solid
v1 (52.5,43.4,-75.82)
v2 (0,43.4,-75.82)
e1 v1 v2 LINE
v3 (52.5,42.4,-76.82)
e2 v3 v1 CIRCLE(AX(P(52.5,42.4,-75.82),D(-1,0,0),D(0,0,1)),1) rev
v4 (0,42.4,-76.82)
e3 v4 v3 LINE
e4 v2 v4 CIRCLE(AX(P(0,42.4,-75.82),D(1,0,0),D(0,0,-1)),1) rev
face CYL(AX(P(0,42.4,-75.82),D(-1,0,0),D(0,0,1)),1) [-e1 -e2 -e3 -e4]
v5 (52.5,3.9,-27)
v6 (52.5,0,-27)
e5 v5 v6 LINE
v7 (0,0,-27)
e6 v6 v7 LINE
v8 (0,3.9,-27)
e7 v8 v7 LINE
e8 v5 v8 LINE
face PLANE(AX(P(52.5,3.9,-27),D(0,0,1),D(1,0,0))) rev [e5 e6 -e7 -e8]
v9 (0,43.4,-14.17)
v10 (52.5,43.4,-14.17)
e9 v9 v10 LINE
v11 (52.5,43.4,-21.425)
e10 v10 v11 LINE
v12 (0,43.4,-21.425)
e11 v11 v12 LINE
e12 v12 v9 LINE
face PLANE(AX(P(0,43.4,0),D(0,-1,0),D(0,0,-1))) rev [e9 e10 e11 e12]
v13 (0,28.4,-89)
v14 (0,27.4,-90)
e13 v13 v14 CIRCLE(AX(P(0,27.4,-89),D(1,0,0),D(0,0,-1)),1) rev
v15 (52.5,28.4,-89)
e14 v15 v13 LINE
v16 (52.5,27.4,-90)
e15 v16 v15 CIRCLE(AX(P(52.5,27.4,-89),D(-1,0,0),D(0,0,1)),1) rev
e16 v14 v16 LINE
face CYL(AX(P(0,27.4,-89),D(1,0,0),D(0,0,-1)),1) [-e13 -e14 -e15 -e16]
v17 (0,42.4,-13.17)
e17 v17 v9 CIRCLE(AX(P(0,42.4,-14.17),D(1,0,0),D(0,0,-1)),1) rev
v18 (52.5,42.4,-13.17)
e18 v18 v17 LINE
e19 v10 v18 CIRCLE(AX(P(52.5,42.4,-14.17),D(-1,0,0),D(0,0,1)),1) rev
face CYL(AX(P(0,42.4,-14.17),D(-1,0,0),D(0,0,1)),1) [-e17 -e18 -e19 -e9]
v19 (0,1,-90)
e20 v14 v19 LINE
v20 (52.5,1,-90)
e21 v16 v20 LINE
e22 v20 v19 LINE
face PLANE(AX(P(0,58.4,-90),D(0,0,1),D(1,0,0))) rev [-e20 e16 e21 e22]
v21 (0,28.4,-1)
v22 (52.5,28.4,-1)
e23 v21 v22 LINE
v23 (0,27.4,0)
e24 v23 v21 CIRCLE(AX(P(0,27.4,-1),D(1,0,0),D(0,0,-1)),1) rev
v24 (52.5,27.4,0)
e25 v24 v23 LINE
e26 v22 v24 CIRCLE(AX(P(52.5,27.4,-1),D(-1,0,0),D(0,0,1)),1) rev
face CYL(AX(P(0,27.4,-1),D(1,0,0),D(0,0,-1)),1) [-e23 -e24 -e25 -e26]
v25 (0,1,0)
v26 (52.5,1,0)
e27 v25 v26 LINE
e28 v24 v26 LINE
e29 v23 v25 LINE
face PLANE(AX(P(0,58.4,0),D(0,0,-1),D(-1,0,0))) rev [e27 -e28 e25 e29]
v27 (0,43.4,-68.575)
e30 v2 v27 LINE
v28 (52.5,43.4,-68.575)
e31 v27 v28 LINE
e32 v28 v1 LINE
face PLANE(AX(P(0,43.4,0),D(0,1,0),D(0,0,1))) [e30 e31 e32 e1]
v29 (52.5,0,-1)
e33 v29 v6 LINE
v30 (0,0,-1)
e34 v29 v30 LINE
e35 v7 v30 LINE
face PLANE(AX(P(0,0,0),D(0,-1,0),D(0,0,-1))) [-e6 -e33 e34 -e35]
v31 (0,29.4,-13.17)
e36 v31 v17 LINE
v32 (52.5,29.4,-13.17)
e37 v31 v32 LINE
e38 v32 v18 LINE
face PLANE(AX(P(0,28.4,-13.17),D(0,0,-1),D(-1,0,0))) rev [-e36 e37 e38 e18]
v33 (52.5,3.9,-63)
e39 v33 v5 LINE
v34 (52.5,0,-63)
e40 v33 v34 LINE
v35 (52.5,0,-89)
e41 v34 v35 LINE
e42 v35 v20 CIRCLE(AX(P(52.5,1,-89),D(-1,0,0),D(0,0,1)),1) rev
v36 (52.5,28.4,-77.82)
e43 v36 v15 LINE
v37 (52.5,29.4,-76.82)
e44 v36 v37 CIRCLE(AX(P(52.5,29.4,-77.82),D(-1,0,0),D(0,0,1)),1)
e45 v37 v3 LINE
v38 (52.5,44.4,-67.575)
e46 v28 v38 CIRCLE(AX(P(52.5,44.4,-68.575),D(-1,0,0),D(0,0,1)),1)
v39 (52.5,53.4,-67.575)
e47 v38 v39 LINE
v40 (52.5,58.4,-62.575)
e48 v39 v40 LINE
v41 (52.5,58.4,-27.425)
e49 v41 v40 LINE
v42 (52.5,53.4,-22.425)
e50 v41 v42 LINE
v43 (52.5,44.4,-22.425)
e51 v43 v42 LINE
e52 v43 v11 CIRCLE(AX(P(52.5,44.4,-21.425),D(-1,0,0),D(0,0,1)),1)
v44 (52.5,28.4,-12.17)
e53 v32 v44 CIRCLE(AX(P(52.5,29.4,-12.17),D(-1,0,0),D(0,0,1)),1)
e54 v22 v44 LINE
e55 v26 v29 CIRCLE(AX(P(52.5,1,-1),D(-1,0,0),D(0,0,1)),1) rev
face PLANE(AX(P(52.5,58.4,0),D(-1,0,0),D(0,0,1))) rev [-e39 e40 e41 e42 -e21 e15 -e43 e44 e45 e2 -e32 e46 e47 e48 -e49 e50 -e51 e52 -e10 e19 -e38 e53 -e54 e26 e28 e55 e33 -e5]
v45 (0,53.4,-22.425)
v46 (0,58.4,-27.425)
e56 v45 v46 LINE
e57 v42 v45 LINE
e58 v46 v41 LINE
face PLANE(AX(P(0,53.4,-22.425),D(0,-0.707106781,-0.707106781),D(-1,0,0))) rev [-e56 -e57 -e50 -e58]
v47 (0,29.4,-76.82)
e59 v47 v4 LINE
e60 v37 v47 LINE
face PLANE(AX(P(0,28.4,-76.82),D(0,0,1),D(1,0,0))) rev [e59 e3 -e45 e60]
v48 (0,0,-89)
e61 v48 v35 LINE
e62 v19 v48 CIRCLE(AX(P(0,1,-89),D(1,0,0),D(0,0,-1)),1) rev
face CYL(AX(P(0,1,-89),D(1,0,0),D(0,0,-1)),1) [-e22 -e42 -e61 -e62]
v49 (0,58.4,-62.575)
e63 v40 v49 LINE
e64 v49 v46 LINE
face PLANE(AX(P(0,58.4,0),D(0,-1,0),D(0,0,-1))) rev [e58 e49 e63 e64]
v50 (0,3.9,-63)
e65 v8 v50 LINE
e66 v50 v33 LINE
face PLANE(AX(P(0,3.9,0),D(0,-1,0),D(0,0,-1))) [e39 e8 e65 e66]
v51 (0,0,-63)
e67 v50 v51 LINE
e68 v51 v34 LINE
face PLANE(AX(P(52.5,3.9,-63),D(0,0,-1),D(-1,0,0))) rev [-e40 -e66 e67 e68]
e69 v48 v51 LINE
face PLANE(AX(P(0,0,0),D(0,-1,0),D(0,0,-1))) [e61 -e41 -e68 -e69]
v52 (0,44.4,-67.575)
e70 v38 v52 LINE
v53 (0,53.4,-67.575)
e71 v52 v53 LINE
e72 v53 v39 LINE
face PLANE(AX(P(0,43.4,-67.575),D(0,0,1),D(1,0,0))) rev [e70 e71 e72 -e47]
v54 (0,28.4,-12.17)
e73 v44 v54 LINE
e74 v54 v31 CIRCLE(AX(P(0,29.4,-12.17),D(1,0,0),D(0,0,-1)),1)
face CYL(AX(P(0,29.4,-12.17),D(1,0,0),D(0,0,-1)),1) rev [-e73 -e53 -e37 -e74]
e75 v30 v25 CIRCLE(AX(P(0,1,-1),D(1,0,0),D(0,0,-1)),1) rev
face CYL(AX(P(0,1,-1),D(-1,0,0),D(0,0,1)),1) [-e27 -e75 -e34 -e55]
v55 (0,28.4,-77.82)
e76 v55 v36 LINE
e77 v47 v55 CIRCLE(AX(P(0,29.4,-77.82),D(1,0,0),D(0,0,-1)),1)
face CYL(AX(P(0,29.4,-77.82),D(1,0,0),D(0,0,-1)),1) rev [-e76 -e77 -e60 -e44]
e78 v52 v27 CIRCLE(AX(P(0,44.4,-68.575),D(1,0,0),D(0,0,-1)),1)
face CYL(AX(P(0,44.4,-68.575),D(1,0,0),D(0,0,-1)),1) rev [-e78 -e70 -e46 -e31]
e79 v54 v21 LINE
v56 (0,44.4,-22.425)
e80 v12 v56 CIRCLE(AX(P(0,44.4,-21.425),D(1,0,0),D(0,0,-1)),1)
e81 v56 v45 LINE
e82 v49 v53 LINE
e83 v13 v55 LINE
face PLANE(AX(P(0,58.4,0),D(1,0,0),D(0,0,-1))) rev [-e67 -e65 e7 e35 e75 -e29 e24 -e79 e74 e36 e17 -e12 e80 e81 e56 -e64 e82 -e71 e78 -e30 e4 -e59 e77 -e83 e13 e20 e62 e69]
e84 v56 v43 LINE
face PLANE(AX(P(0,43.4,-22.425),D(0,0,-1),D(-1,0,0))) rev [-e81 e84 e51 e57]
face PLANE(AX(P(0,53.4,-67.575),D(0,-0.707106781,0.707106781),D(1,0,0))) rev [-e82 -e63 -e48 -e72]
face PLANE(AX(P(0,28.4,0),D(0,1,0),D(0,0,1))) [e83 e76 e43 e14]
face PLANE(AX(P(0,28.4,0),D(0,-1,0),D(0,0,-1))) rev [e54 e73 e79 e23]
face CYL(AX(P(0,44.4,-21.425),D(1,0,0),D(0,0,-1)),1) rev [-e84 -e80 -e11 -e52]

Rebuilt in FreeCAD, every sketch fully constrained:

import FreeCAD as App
import Part
import Sketcher
from FreeCAD import Vector
Q = App.Units.Quantity


def edges_at(feature, points):
    """Names of the edges that pass closest to the given points."""
    edges = feature.Shape.Edges
    near = lambda p: min(range(len(edges)), key=lambda i: edges[i].distToShape(Part.Vertex(*p))[0])
    return sorted({f"Edge{near(p) + 1}" for p in points})

doc = App.newDocument("Part")
body = doc.addObject("PartDesign::Body", "Body")

sketch1 = body.newObject("Sketcher::SketchObject", "Sketch")
sketch1.AttachmentSupport = (doc.getObject("XZ_Plane"), [""])
sketch1.MapMode = "FlatFace"
sketch1.addGeometry([
    Part.LineSegment(Vector(0, -90, 0), Vector(0, 0, 0)),
    Part.LineSegment(Vector(0, 0, 0), Vector(52, 0, 0)),
    Part.LineSegment(Vector(52, 0, 0), Vector(52, -90, 0)),
    Part.LineSegment(Vector(52, -90, 0), Vector(0, -90, 0)),
], False)
sketch1.addConstraint([
    Sketcher.Constraint("Coincident", 0, 2, 1, 1),
    Sketcher.Constraint("Coincident", 1, 2, 2, 1),
    Sketcher.Constraint("Coincident", 2, 2, 3, 1),
    Sketcher.Constraint("Coincident", 3, 2, 0, 1),
    Sketcher.Constraint("Vertical", 0),
    Sketcher.Constraint("Horizontal", 1),
    Sketcher.Constraint("Vertical", 2),
    Sketcher.Constraint("Horizontal", 3),
    Sketcher.Constraint("Coincident", 0, 2, -1, 1),
    Sketcher.Constraint("DistanceY", 0, 1, 0, 2, Q("90 mm")),
    Sketcher.Constraint("DistanceX", 1, 1, 1, 2, Q("52.5 mm")),
])
pad1 = body.newObject("PartDesign::Pad", "Pad")
pad1.Profile = sketch1
pad1.Length = 58.4
pad1.Reversed = True

sketch2 = body.newObject("Sketcher::SketchObject", "Sketch001")
sketch2.AttachmentSupport = (doc.getObject("XZ_Plane"), [""])
sketch2.MapMode = "FlatFace"
sketch2.AttachmentOffset = App.Placement(Vector(0, 0, -58.4), App.Rotation())
sketch2.addGeometry([
    Part.LineSegment(Vector(0, -90, 0), Vector(0, -68, 0)),
    Part.LineSegment(Vector(0, -68, 0), Vector(52, -68, 0)),
    Part.LineSegment(Vector(52, -68, 0), Vector(52, -90, 0)),
    Part.LineSegment(Vector(52, -90, 0), Vector(0, -90, 0)),
    Part.LineSegment(Vector(0, -22, 0), Vector(0, 0, 0)),
    Part.LineSegment(Vector(0, 0, 0), Vector(52, 0, 0)),
    Part.LineSegment(Vector(52, 0, 0), Vector(52, -22, 0)),
    Part.LineSegment(Vector(52, -22, 0), Vector(0, -22, 0)),
], False)
sketch2.addConstraint([
    Sketcher.Constraint("Coincident", 0, 2, 1, 1),
    Sketcher.Constraint("Coincident", 1, 2, 2, 1),
    Sketcher.Constraint("Coincident", 2, 2, 3, 1),
    Sketcher.Constraint("Coincident", 3, 2, 0, 1),
    Sketcher.Constraint("Coincident", 4, 2, 5, 1),
    Sketcher.Constraint("Coincident", 5, 2, 6, 1),
    Sketcher.Constraint("Coincident", 6, 2, 7, 1),
    Sketcher.Constraint("Coincident", 7, 2, 4, 1),
    Sketcher.Constraint("Vertical", 0),
    Sketcher.Constraint("Horizontal", 1),
    Sketcher.Constraint("Vertical", 2),
    Sketcher.Constraint("Horizontal", 3),
    Sketcher.Constraint("Vertical", 4),
    Sketcher.Constraint("Horizontal", 5),
    Sketcher.Constraint("Vertical", 6),
    Sketcher.Constraint("Horizontal", 7),
    Sketcher.Constraint("Coincident", 4, 2, -1, 1),
    Sketcher.Constraint("PointOnObject", 0, 2, -2),
    Sketcher.Constraint("Vertical", 2, 2, 5, 2),
    Sketcher.Constraint("Equal", 2, 4),
    Sketcher.Constraint("DistanceX", 1, 1, 1, 2, Q("52.5 mm")),
    Sketcher.Constraint("DistanceY", 2, 2, -1, 1, Q("90 mm")),
    Sketcher.Constraint("DistanceY", 0, 1, 0, 2, Q("22.425 mm")),
])
pocket1 = body.newObject("PartDesign::Pocket", "Pocket")
pocket1.Profile = sketch2
pocket1.Length = 15
pocket1.Reversed = True

sketch3 = body.newObject("Sketcher::SketchObject", "Sketch002")
sketch3.AttachmentSupport = (doc.getObject("XZ_Plane"), [""])
sketch3.MapMode = "FlatFace"
sketch3.AttachmentOffset = App.Placement(Vector(0, 0, -43.4), App.Rotation())
sketch3.addGeometry([
    Part.LineSegment(Vector(0, -90, 0), Vector(0, -77, 0)),
    Part.LineSegment(Vector(0, -77, 0), Vector(52, -77, 0)),
    Part.LineSegment(Vector(52, -77, 0), Vector(52, -90, 0)),
    Part.LineSegment(Vector(52, -90, 0), Vector(0, -90, 0)),
    Part.LineSegment(Vector(0, -13, 0), Vector(0, 0, 0)),
    Part.LineSegment(Vector(0, 0, 0), Vector(52, 0, 0)),
    Part.LineSegment(Vector(52, 0, 0), Vector(52, -13, 0)),
    Part.LineSegment(Vector(52, -13, 0), Vector(0, -13, 0)),
], False)
sketch3.addConstraint([
    Sketcher.Constraint("Coincident", 0, 2, 1, 1),
    Sketcher.Constraint("Coincident", 1, 2, 2, 1),
    Sketcher.Constraint("Coincident", 2, 2, 3, 1),
    Sketcher.Constraint("Coincident", 3, 2, 0, 1),
    Sketcher.Constraint("Coincident", 4, 2, 5, 1),
    Sketcher.Constraint("Coincident", 5, 2, 6, 1),
    Sketcher.Constraint("Coincident", 6, 2, 7, 1),
    Sketcher.Constraint("Coincident", 7, 2, 4, 1),
    Sketcher.Constraint("Vertical", 0),
    Sketcher.Constraint("Horizontal", 1),
    Sketcher.Constraint("Vertical", 2),
    Sketcher.Constraint("Horizontal", 3),
    Sketcher.Constraint("Vertical", 4),
    Sketcher.Constraint("Horizontal", 5),
    Sketcher.Constraint("Vertical", 6),
    Sketcher.Constraint("Horizontal", 7),
    Sketcher.Constraint("Coincident", 4, 2, -1, 1),
    Sketcher.Constraint("PointOnObject", 0, 2, -2),
    Sketcher.Constraint("Vertical", 2, 2, 5, 2),
    Sketcher.Constraint("DistanceX", 1, 1, 1, 2, Q("52.5 mm")),
    Sketcher.Constraint("DistanceY", 2, 2, -1, 1, Q("90 mm")),
    Sketcher.Constraint("DistanceY", 0, 1, 0, 2, Q("13.18 mm")),
    Sketcher.Constraint("DistanceY", 4, 1, 4, 2, Q("13.17 mm")),
])
pocket2 = body.newObject("PartDesign::Pocket", "Pocket001")
pocket2.Profile = sketch3
pocket2.Length = 15
pocket2.Reversed = True
doc.recompute()

chamfer = body.newObject("PartDesign::Chamfer", "Chamfer")
chamfer.Base = (pocket2, edges_at(pocket2, [(26.25, 58.4, -67.575), (26.25, 58.4, -22.425)]))
chamfer.Size = 5

sketch4 = body.newObject("Sketcher::SketchObject", "Sketch003")
sketch4.AttachmentSupport = (doc.getObject("XZ_Plane"), [""])
sketch4.MapMode = "FlatFace"
sketch4.addGeometry([
    Part.LineSegment(Vector(0, -27, 0), Vector(0, -63, 0)),
    Part.LineSegment(Vector(0, -63, 0), Vector(52, -63, 0)),
    Part.LineSegment(Vector(52, -63, 0), Vector(52, -27, 0)),
    Part.LineSegment(Vector(52, -27, 0), Vector(0, -27, 0)),
], False)
sketch4.addConstraint([
    Sketcher.Constraint("Coincident", 0, 2, 1, 1),
    Sketcher.Constraint("Coincident", 1, 2, 2, 1),
    Sketcher.Constraint("Coincident", 2, 2, 3, 1),
    Sketcher.Constraint("Coincident", 3, 2, 0, 1),
    Sketcher.Constraint("Vertical", 0),
    Sketcher.Constraint("Horizontal", 1),
    Sketcher.Constraint("Vertical", 2),
    Sketcher.Constraint("Horizontal", 3),
    Sketcher.Constraint("PointOnObject", 0, 2, -2),
    Sketcher.Constraint("DistanceY", 0, 2, 0, 1, Q("36 mm")),
    Sketcher.Constraint("DistanceX", 1, 1, 1, 2, Q("52.5 mm")),
    Sketcher.Constraint("DistanceY", 0, 2, -1, 1, Q("63 mm")),
])
pocket3 = body.newObject("PartDesign::Pocket", "Pocket002")
pocket3.Profile = sketch4
pocket3.Length = 3.9
doc.recompute()

fillet = body.newObject("PartDesign::Fillet", "Fillet")
fillet.Base = (pocket3, edges_at(pocket3, [
    (26.25, 43.4, -67.575),
    (26.25, 43.4, -22.425),
    (26.25, 0, -90),
    (26.25, 28.4, -90),
    (26.25, 28.4, -76.82),
    (26.25, 43.4, -76.82),
    (26.25, 0, 0),
    (26.25, 28.4, -13.17),
    (26.25, 28.4, 0),
    (26.25, 43.4, -13.17),
]))
fillet.Radius = 1

doc.recompute()
